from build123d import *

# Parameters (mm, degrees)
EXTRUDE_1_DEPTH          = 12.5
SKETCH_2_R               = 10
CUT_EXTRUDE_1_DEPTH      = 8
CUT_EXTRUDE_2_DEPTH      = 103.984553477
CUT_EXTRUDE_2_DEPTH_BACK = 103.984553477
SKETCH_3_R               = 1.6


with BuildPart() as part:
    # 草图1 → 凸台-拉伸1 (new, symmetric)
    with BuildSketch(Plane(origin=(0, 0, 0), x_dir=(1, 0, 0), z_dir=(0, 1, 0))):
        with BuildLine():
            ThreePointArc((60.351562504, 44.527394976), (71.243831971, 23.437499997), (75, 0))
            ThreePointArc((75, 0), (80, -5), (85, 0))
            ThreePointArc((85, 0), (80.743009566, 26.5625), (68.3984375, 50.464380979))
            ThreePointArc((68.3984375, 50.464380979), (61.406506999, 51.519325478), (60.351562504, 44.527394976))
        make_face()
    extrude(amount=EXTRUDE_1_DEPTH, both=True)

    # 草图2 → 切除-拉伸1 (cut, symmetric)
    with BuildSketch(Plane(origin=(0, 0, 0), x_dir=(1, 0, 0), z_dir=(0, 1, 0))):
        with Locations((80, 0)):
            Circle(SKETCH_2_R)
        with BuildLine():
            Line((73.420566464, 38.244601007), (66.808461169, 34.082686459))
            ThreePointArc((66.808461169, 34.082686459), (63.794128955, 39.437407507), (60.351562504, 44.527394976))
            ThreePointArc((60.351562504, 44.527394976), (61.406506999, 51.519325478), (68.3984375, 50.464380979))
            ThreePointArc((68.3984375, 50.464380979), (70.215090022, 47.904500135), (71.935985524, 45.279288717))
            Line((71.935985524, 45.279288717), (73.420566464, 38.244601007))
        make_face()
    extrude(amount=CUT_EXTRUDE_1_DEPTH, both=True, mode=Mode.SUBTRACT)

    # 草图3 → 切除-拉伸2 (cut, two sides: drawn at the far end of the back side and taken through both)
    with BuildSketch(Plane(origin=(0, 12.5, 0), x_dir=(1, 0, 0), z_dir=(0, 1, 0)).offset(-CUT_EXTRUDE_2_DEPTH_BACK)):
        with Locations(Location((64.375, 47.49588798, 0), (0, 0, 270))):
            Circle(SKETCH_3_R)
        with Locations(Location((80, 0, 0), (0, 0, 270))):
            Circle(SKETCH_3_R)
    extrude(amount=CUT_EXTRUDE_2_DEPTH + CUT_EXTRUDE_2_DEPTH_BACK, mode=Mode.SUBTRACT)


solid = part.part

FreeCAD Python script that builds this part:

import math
import FreeCAD as App
import Part
import Sketcher
from FreeCAD import Vector

doc = App.newDocument("Part")
body = doc.addObject("PartDesign::Body", "Body")

# Sketch on XZ plane
sketch1 = body.newObject("Sketcher::SketchObject", "Sketch")
sketch1.AttachmentSupport = (doc.getObject("XZ_Plane"), [""])
sketch1.MapMode = "FlatFace"
sketch1.addGeometry(Part.ArcOfCircle(Part.Circle(Vector(0, 0, 0), Vector(0, 0, 1), 75), math.radians(-36), math.radians(0)), False)
sketch1.addGeometry(Part.ArcOfCircle(Part.Circle(Vector(80, 0, 0), Vector(0, 0, 1), 5), math.radians(0), math.radians(180)), False)
sketch1.addGeometry(Part.ArcOfCircle(Part.Circle(Vector(0, 0, 0), Vector(0, 0, 1), 85), math.radians(-36), math.radians(0)), False)
sketch1.addGeometry(Part.ArcOfCircle(Part.Circle(Vector(64, -47, 0), Vector(0, 0, 1), 5), math.radians(144), math.radians(324)), False)
sketch1.addConstraint(Sketcher.Constraint("Tangent", 0, 2, 1, 2))
sketch1.addConstraint(Sketcher.Constraint("Tangent", 1, 1, 2, 2))
sketch1.addConstraint(Sketcher.Constraint("Tangent", 2, 1, 3, 2))
sketch1.addConstraint(Sketcher.Constraint("Tangent", 3, 1, 0, 1))
sketch1.addConstraint(Sketcher.Constraint("Coincident", 0, 3, -1, 1))
sketch1.addConstraint(Sketcher.Constraint("Coincident", 2, 3, -1, 1))
sketch1.addConstraint(Sketcher.Constraint("PointOnObject", 1, 3, -1))
sketch1.addConstraint(Sketcher.Constraint("Radius", 0, 75.0))
sketch1.addConstraint(Sketcher.Constraint("Radius", 1, 5.0))
sketch1.addConstraint(Sketcher.Constraint("DistanceX", -1, 1, 3, 3, 64.375))
pad1 = body.newObject("PartDesign::Pad", "Pad")
pad1.Profile = sketch1
pad1.Length = 25
pad1.Midplane = True

# Sketch on XZ plane
sketch2 = body.newObject("Sketcher::SketchObject", "Sketch001")
sketch2.AttachmentSupport = (doc.getObject("XZ_Plane"), [""])
sketch2.MapMode = "FlatFace"
sketch2.addGeometry(Part.Circle(Vector(80, 0, 0), Vector(0, 0, 1), 10), False)
sketch2.addGeometry(Part.LineSegment(Vector(67, -34, 0), Vector(73, -38, 0)), False)
sketch2.addGeometry(Part.LineSegment(Vector(73, -38, 0), Vector(72, -45, 0)), False)
sketch2.addGeometry(Part.ArcOfCircle(Part.Circle(Vector(0, 0, 0), Vector(0, 0, 1), 85), math.radians(-36.42), math.radians(-32.19)), False)
sketch2.addGeometry(Part.ArcOfCircle(Part.Circle(Vector(64, -47, 0), Vector(0, 0, 1), 5), math.radians(144), math.radians(324)), False)
sketch2.addGeometry(Part.ArcOfCircle(Part.Circle(Vector(0, 0, 0), Vector(0, 0, 1), 75), math.radians(-36.42), math.radians(-27.03)), False)
sketch2.addConstraint(Sketcher.Constraint("Coincident", 1, 2, 2, 1))
sketch2.addConstraint(Sketcher.Constraint("Coincident", 2, 2, 3, 2))
sketch2.addConstraint(Sketcher.Constraint("Tangent", 3, 1, 4, 2))
sketch2.addConstraint(Sketcher.Constraint("Tangent", 4, 1, 5, 1))
sketch2.addConstraint(Sketcher.Constraint("Coincident", 5, 2, 1, 1))
sketch2.addConstraint(Sketcher.Constraint("Coincident", 3, 3, -1, 1))
sketch2.addConstraint(Sketcher.Constraint("Coincident", 5, 3, -1, 1))
sketch2.addConstraint(Sketcher.Constraint("PointOnObject", 0, 3, -1))
sketch2.addConstraint(Sketcher.Constraint("Diameter", 0, 20.0))
sketch2.addConstraint(Sketcher.Constraint("Radius", 3, 85.0))
sketch2.addConstraint(Sketcher.Constraint("Radius", 4, 5.0))
sketch2.addConstraint(Sketcher.Constraint("DistanceX", -1, 1, 0, 3, 80.0))
sketch2.addConstraint(Sketcher.Constraint("DistanceX", -1, 1, 4, 3, 64.375))
sketch2.addConstraint(Sketcher.Constraint("DistanceY", 1, 2, -1, 1, 38.244601))
sketch2.addConstraint(Sketcher.Constraint("DistanceY", 4, 3, 2, 2, 2.216599))
sketch2.addConstraint(Sketcher.Constraint("DistanceX", 4, 1, 5, 2, 6.456899))
sketch2.addConstraint(Sketcher.Constraint("DistanceX", 2, 2, 1, 2, 1.484581))
pocket1 = body.newObject("PartDesign::Pocket", "Pocket")
pocket1.Profile = sketch2
pocket1.Length = 16
pocket1.Midplane = True

# Sketch on XZ plane
sketch3 = body.newObject("Sketcher::SketchObject", "Sketch002")
sketch3.AttachmentSupport = (doc.getObject("XZ_Plane"), [""])
sketch3.MapMode = "FlatFace"
sketch3.AttachmentOffset = App.Placement(Vector(0, 0, -12.5), App.Rotation())
sketch3.addGeometry(Part.Circle(Vector(64.4, -47.5, 0), Vector(0, 0, 1), 1.6), False)
sketch3.addGeometry(Part.Circle(Vector(80, 0, 0), Vector(0, 0, 1), 1.6), False)
sketch3.addConstraint(Sketcher.Constraint("Equal", 0, 1))
sketch3.addConstraint(Sketcher.Constraint("PointOnObject", 1, 3, -1))
sketch3.addConstraint(Sketcher.Constraint("Diameter", 0, 3.2))
sketch3.addConstraint(Sketcher.Constraint("DistanceX", -1, 1, 1, 3, 80.0))
sketch3.addConstraint(Sketcher.Constraint("DistanceX", -1, 1, 0, 3, 64.375))
sketch3.addConstraint(Sketcher.Constraint("DistanceY", 0, 3, -1, 1, 47.495888))
pocket2 = body.newObject("PartDesign::Pocket", "Pocket001")
pocket2.Profile = sketch3
pocket2.Type = "ThroughAll"
pocket2.Midplane = True

doc.recompute()
